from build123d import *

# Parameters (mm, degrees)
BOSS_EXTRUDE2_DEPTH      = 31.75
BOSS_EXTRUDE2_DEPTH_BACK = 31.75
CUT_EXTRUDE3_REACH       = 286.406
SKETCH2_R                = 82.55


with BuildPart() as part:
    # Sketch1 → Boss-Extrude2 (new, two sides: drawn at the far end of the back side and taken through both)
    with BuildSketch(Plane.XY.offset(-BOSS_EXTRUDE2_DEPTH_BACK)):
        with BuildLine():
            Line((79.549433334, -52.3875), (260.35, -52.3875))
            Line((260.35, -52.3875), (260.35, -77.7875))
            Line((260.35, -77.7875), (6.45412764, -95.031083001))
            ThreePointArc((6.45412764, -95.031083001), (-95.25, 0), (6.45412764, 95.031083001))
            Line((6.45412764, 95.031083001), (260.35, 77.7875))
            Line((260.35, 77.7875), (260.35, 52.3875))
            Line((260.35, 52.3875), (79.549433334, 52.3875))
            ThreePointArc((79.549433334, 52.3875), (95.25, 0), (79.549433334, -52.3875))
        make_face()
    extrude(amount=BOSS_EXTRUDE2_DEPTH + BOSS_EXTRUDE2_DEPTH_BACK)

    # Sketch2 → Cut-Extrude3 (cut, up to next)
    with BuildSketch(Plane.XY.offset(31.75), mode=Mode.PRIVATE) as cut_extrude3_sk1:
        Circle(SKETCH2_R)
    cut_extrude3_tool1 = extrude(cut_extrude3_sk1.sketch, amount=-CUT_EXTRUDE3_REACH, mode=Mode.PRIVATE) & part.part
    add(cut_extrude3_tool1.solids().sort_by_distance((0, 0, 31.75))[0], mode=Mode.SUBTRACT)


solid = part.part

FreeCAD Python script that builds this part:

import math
import FreeCAD as App
import Part
import Sketcher
from FreeCAD import Vector
Q = App.Units.Quantity

doc = App.newDocument("Part")
body = doc.addObject("PartDesign::Body", "Body")

sketch1 = body.newObject("Sketcher::SketchObject", "Sketch")
sketch1.AttachmentSupport = (doc.getObject("XY_Plane"), [""])
sketch1.MapMode = "FlatFace"
sketch1.addGeometry([
    Part.LineSegment(Vector(260, -52, 0), Vector(80, -52, 0)),
    Part.ArcOfCircle(Part.Circle(Vector(0, 0, 0), Vector(0, 0, 1), 95), math.radians(-33), math.radians(33)),
    Part.LineSegment(Vector(80, 52, 0), Vector(260, 52, 0)),
    Part.LineSegment(Vector(260, 52, 0), Vector(260, 78, 0)),
    Part.LineSegment(Vector(260, 78, 0), Vector(6, 95, 0)),
    Part.ArcOfCircle(Part.Circle(Vector(0, 0, 0), Vector(0, 0, 1), 95), math.radians(86), math.radians(274)),
    Part.LineSegment(Vector(6, -95, 0), Vector(260, -78, 0)),
    Part.LineSegment(Vector(260, -78, 0), Vector(260, -52, 0)),
], False)
sketch1.addConstraint([
    Sketcher.Constraint("Coincident", 0, 2, 1, 1),
    Sketcher.Constraint("Coincident", 1, 2, 2, 1),
    Sketcher.Constraint("Coincident", 2, 2, 3, 1),
    Sketcher.Constraint("Coincident", 3, 2, 4, 1),
    Sketcher.Constraint("Tangent", 4, 2, 5, 1),
    Sketcher.Constraint("Tangent", 5, 2, 6, 1),
    Sketcher.Constraint("Coincident", 6, 2, 7, 1),
    Sketcher.Constraint("Coincident", 7, 2, 0, 1),
    Sketcher.Constraint("Horizontal", 0),
    Sketcher.Constraint("Horizontal", 2),
    Sketcher.Constraint("Vertical", 3),
    Sketcher.Constraint("Vertical", 7),
    Sketcher.Constraint("Coincident", 1, 3, -1, 1),
    Sketcher.Constraint("Coincident", 5, 3, -1, 1),
    Sketcher.Constraint("Equal", 1, 5),
    Sketcher.Constraint("Symmetric", 3, 2, 6, 2, -1),
    Sketcher.Constraint("Vertical", 0, 2, 1, 2),
    Sketcher.Constraint("DistanceY", 3, 1, 3, 2, Q("1 in")),
    Sketcher.Constraint("Radius", 1, Q("3.75 in")),
    Sketcher.Constraint("DistanceX", -1, 1, 2, 2, Q("10.25 in")),
    Sketcher.Constraint("DistanceY", 0, 2, -1, 1, Q("2.0625 in")),
])
pad1 = body.newObject("PartDesign::Pad", "Pad")
pad1.Profile = sketch1
pad1.Type = "TwoLengths"
pad1.Length = Q("1.25 in")
pad1.Length2 = Q("1.25 in")

sketch2 = body.newObject("Sketcher::SketchObject", "Sketch001")
sketch2.AttachmentSupport = (doc.getObject("XY_Plane"), [""])
sketch2.MapMode = "FlatFace"
sketch2.AttachmentOffset = App.Placement(Vector(0, 0, 1.25 * 25.4), App.Rotation())
sketch2.addGeometry(Part.Circle(Vector(0, 0, 0), Vector(0, 0, 1), 83), False)
sketch2.addConstraint([
    Sketcher.Constraint("Coincident", 0, 3, -1, 1),
    Sketcher.Constraint("Diameter", 0, Q("6.5 in")),
])
pocket1 = body.newObject("PartDesign::Pocket", "Pocket")
pocket1.Profile = sketch2
pocket1.Type = "UpToFirst"

doc.recompute()
